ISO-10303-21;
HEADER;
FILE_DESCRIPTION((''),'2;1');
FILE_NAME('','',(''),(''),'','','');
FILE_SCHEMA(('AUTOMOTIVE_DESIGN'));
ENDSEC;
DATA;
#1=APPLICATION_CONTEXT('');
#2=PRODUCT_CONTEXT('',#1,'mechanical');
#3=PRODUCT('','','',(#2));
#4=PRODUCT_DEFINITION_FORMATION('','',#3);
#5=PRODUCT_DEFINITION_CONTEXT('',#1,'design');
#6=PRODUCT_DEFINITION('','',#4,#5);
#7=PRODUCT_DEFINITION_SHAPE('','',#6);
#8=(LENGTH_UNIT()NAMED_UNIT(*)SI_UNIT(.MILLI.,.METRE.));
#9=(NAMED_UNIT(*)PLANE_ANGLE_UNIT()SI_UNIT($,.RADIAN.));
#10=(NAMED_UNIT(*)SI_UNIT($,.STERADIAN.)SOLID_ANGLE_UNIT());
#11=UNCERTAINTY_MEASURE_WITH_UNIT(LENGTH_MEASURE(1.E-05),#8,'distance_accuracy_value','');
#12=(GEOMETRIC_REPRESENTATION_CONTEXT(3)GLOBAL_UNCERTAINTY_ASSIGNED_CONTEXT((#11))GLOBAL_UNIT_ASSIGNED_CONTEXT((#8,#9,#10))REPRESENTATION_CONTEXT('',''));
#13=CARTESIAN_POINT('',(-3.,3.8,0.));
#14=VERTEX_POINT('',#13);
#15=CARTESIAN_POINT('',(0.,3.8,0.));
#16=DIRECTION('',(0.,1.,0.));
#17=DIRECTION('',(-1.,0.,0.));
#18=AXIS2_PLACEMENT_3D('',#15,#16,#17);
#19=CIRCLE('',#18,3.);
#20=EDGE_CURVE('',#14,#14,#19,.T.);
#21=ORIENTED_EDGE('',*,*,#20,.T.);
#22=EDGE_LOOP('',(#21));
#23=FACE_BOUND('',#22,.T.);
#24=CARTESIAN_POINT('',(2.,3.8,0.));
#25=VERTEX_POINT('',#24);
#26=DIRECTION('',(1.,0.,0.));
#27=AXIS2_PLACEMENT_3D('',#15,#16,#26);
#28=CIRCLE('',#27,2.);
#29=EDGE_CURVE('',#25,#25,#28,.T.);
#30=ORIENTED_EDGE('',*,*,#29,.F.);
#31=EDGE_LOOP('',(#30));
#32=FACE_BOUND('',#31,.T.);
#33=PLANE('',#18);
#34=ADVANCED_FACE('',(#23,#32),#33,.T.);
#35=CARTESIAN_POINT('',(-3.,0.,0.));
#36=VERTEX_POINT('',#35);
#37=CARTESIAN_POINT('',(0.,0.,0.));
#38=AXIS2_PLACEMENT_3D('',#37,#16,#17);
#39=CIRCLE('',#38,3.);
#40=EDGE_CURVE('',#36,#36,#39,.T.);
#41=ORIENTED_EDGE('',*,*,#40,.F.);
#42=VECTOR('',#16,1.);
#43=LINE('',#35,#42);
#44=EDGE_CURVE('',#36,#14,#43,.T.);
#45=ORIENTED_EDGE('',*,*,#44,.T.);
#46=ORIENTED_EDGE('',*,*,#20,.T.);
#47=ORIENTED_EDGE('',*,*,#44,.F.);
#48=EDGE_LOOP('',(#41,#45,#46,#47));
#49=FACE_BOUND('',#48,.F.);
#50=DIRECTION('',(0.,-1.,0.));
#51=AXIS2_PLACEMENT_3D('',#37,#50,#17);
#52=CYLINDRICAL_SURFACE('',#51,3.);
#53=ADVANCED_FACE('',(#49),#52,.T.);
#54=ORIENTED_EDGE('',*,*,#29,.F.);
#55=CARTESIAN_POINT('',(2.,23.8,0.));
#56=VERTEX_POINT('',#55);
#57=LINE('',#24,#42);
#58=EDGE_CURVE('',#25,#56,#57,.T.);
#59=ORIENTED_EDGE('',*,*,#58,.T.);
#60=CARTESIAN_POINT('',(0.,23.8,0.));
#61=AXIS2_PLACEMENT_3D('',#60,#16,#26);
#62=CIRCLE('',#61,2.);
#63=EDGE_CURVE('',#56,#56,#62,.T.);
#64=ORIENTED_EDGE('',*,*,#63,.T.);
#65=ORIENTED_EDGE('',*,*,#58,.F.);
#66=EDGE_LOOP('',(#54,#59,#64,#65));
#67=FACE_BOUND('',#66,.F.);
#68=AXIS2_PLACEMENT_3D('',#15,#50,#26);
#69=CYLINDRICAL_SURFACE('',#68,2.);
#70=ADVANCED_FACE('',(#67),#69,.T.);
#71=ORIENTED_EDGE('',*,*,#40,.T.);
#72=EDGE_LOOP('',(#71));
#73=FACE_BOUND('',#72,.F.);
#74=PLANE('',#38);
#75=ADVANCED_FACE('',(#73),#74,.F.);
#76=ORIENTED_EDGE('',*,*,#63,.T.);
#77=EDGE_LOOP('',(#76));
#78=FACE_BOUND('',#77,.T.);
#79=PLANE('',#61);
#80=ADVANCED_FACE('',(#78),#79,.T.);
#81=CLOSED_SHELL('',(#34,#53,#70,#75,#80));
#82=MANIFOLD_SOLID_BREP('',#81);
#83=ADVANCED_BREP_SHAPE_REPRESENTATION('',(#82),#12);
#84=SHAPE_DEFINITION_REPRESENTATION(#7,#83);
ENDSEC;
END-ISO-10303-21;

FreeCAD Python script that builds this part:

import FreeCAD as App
import Part
import Sketcher
Q = App.Units.Quantity

doc = App.newDocument("Part")
body = doc.addObject("PartDesign::Body", "Body")

sketch1 = doc.addObject("Sketcher::SketchObject", "Sketch")
body.addObject(sketch1)
sketch1.AttachmentSupport = (doc.XZ_Plane, [""])
sketch1.MapMode = "FlatFace"
sketch1.addGeometry(Part.Circle(App.Vector(0, 0, 0), App.Vector(0, 0, 1), 3), False)
sketch1.addConstraint([
    Sketcher.Constraint("Coincident", 0, 3, -1, 1),
    Sketcher.Constraint("Diameter", 0, Q("6 mm")),
])
pad1 = doc.addObject("PartDesign::Pad", "Pad")
body.addObject(pad1)
pad1.Profile = sketch1
pad1.Length = 3.8
pad1.Reversed = True

sketch2 = doc.addObject("Sketcher::SketchObject", "Sketch001")
body.addObject(sketch2)
sketch2.AttachmentSupport = (doc.XZ_Plane, [""])
sketch2.MapMode = "FlatFace"
sketch2.AttachmentOffset = App.Placement(App.Vector(0, 0, -3.8), App.Rotation())
sketch2.addGeometry(Part.Circle(App.Vector(0, 0, 0), App.Vector(0, 0, 1), 2), False)
sketch2.addConstraint([
    Sketcher.Constraint("Coincident", 0, 3, -1, 1),
    Sketcher.Constraint("Diameter", 0, Q("4 mm")),
])
pad2 = doc.addObject("PartDesign::Pad", "Pad001")
body.addObject(pad2)
pad2.Profile = sketch2
pad2.Length = 20
pad2.Reversed = True

doc.recompute()
